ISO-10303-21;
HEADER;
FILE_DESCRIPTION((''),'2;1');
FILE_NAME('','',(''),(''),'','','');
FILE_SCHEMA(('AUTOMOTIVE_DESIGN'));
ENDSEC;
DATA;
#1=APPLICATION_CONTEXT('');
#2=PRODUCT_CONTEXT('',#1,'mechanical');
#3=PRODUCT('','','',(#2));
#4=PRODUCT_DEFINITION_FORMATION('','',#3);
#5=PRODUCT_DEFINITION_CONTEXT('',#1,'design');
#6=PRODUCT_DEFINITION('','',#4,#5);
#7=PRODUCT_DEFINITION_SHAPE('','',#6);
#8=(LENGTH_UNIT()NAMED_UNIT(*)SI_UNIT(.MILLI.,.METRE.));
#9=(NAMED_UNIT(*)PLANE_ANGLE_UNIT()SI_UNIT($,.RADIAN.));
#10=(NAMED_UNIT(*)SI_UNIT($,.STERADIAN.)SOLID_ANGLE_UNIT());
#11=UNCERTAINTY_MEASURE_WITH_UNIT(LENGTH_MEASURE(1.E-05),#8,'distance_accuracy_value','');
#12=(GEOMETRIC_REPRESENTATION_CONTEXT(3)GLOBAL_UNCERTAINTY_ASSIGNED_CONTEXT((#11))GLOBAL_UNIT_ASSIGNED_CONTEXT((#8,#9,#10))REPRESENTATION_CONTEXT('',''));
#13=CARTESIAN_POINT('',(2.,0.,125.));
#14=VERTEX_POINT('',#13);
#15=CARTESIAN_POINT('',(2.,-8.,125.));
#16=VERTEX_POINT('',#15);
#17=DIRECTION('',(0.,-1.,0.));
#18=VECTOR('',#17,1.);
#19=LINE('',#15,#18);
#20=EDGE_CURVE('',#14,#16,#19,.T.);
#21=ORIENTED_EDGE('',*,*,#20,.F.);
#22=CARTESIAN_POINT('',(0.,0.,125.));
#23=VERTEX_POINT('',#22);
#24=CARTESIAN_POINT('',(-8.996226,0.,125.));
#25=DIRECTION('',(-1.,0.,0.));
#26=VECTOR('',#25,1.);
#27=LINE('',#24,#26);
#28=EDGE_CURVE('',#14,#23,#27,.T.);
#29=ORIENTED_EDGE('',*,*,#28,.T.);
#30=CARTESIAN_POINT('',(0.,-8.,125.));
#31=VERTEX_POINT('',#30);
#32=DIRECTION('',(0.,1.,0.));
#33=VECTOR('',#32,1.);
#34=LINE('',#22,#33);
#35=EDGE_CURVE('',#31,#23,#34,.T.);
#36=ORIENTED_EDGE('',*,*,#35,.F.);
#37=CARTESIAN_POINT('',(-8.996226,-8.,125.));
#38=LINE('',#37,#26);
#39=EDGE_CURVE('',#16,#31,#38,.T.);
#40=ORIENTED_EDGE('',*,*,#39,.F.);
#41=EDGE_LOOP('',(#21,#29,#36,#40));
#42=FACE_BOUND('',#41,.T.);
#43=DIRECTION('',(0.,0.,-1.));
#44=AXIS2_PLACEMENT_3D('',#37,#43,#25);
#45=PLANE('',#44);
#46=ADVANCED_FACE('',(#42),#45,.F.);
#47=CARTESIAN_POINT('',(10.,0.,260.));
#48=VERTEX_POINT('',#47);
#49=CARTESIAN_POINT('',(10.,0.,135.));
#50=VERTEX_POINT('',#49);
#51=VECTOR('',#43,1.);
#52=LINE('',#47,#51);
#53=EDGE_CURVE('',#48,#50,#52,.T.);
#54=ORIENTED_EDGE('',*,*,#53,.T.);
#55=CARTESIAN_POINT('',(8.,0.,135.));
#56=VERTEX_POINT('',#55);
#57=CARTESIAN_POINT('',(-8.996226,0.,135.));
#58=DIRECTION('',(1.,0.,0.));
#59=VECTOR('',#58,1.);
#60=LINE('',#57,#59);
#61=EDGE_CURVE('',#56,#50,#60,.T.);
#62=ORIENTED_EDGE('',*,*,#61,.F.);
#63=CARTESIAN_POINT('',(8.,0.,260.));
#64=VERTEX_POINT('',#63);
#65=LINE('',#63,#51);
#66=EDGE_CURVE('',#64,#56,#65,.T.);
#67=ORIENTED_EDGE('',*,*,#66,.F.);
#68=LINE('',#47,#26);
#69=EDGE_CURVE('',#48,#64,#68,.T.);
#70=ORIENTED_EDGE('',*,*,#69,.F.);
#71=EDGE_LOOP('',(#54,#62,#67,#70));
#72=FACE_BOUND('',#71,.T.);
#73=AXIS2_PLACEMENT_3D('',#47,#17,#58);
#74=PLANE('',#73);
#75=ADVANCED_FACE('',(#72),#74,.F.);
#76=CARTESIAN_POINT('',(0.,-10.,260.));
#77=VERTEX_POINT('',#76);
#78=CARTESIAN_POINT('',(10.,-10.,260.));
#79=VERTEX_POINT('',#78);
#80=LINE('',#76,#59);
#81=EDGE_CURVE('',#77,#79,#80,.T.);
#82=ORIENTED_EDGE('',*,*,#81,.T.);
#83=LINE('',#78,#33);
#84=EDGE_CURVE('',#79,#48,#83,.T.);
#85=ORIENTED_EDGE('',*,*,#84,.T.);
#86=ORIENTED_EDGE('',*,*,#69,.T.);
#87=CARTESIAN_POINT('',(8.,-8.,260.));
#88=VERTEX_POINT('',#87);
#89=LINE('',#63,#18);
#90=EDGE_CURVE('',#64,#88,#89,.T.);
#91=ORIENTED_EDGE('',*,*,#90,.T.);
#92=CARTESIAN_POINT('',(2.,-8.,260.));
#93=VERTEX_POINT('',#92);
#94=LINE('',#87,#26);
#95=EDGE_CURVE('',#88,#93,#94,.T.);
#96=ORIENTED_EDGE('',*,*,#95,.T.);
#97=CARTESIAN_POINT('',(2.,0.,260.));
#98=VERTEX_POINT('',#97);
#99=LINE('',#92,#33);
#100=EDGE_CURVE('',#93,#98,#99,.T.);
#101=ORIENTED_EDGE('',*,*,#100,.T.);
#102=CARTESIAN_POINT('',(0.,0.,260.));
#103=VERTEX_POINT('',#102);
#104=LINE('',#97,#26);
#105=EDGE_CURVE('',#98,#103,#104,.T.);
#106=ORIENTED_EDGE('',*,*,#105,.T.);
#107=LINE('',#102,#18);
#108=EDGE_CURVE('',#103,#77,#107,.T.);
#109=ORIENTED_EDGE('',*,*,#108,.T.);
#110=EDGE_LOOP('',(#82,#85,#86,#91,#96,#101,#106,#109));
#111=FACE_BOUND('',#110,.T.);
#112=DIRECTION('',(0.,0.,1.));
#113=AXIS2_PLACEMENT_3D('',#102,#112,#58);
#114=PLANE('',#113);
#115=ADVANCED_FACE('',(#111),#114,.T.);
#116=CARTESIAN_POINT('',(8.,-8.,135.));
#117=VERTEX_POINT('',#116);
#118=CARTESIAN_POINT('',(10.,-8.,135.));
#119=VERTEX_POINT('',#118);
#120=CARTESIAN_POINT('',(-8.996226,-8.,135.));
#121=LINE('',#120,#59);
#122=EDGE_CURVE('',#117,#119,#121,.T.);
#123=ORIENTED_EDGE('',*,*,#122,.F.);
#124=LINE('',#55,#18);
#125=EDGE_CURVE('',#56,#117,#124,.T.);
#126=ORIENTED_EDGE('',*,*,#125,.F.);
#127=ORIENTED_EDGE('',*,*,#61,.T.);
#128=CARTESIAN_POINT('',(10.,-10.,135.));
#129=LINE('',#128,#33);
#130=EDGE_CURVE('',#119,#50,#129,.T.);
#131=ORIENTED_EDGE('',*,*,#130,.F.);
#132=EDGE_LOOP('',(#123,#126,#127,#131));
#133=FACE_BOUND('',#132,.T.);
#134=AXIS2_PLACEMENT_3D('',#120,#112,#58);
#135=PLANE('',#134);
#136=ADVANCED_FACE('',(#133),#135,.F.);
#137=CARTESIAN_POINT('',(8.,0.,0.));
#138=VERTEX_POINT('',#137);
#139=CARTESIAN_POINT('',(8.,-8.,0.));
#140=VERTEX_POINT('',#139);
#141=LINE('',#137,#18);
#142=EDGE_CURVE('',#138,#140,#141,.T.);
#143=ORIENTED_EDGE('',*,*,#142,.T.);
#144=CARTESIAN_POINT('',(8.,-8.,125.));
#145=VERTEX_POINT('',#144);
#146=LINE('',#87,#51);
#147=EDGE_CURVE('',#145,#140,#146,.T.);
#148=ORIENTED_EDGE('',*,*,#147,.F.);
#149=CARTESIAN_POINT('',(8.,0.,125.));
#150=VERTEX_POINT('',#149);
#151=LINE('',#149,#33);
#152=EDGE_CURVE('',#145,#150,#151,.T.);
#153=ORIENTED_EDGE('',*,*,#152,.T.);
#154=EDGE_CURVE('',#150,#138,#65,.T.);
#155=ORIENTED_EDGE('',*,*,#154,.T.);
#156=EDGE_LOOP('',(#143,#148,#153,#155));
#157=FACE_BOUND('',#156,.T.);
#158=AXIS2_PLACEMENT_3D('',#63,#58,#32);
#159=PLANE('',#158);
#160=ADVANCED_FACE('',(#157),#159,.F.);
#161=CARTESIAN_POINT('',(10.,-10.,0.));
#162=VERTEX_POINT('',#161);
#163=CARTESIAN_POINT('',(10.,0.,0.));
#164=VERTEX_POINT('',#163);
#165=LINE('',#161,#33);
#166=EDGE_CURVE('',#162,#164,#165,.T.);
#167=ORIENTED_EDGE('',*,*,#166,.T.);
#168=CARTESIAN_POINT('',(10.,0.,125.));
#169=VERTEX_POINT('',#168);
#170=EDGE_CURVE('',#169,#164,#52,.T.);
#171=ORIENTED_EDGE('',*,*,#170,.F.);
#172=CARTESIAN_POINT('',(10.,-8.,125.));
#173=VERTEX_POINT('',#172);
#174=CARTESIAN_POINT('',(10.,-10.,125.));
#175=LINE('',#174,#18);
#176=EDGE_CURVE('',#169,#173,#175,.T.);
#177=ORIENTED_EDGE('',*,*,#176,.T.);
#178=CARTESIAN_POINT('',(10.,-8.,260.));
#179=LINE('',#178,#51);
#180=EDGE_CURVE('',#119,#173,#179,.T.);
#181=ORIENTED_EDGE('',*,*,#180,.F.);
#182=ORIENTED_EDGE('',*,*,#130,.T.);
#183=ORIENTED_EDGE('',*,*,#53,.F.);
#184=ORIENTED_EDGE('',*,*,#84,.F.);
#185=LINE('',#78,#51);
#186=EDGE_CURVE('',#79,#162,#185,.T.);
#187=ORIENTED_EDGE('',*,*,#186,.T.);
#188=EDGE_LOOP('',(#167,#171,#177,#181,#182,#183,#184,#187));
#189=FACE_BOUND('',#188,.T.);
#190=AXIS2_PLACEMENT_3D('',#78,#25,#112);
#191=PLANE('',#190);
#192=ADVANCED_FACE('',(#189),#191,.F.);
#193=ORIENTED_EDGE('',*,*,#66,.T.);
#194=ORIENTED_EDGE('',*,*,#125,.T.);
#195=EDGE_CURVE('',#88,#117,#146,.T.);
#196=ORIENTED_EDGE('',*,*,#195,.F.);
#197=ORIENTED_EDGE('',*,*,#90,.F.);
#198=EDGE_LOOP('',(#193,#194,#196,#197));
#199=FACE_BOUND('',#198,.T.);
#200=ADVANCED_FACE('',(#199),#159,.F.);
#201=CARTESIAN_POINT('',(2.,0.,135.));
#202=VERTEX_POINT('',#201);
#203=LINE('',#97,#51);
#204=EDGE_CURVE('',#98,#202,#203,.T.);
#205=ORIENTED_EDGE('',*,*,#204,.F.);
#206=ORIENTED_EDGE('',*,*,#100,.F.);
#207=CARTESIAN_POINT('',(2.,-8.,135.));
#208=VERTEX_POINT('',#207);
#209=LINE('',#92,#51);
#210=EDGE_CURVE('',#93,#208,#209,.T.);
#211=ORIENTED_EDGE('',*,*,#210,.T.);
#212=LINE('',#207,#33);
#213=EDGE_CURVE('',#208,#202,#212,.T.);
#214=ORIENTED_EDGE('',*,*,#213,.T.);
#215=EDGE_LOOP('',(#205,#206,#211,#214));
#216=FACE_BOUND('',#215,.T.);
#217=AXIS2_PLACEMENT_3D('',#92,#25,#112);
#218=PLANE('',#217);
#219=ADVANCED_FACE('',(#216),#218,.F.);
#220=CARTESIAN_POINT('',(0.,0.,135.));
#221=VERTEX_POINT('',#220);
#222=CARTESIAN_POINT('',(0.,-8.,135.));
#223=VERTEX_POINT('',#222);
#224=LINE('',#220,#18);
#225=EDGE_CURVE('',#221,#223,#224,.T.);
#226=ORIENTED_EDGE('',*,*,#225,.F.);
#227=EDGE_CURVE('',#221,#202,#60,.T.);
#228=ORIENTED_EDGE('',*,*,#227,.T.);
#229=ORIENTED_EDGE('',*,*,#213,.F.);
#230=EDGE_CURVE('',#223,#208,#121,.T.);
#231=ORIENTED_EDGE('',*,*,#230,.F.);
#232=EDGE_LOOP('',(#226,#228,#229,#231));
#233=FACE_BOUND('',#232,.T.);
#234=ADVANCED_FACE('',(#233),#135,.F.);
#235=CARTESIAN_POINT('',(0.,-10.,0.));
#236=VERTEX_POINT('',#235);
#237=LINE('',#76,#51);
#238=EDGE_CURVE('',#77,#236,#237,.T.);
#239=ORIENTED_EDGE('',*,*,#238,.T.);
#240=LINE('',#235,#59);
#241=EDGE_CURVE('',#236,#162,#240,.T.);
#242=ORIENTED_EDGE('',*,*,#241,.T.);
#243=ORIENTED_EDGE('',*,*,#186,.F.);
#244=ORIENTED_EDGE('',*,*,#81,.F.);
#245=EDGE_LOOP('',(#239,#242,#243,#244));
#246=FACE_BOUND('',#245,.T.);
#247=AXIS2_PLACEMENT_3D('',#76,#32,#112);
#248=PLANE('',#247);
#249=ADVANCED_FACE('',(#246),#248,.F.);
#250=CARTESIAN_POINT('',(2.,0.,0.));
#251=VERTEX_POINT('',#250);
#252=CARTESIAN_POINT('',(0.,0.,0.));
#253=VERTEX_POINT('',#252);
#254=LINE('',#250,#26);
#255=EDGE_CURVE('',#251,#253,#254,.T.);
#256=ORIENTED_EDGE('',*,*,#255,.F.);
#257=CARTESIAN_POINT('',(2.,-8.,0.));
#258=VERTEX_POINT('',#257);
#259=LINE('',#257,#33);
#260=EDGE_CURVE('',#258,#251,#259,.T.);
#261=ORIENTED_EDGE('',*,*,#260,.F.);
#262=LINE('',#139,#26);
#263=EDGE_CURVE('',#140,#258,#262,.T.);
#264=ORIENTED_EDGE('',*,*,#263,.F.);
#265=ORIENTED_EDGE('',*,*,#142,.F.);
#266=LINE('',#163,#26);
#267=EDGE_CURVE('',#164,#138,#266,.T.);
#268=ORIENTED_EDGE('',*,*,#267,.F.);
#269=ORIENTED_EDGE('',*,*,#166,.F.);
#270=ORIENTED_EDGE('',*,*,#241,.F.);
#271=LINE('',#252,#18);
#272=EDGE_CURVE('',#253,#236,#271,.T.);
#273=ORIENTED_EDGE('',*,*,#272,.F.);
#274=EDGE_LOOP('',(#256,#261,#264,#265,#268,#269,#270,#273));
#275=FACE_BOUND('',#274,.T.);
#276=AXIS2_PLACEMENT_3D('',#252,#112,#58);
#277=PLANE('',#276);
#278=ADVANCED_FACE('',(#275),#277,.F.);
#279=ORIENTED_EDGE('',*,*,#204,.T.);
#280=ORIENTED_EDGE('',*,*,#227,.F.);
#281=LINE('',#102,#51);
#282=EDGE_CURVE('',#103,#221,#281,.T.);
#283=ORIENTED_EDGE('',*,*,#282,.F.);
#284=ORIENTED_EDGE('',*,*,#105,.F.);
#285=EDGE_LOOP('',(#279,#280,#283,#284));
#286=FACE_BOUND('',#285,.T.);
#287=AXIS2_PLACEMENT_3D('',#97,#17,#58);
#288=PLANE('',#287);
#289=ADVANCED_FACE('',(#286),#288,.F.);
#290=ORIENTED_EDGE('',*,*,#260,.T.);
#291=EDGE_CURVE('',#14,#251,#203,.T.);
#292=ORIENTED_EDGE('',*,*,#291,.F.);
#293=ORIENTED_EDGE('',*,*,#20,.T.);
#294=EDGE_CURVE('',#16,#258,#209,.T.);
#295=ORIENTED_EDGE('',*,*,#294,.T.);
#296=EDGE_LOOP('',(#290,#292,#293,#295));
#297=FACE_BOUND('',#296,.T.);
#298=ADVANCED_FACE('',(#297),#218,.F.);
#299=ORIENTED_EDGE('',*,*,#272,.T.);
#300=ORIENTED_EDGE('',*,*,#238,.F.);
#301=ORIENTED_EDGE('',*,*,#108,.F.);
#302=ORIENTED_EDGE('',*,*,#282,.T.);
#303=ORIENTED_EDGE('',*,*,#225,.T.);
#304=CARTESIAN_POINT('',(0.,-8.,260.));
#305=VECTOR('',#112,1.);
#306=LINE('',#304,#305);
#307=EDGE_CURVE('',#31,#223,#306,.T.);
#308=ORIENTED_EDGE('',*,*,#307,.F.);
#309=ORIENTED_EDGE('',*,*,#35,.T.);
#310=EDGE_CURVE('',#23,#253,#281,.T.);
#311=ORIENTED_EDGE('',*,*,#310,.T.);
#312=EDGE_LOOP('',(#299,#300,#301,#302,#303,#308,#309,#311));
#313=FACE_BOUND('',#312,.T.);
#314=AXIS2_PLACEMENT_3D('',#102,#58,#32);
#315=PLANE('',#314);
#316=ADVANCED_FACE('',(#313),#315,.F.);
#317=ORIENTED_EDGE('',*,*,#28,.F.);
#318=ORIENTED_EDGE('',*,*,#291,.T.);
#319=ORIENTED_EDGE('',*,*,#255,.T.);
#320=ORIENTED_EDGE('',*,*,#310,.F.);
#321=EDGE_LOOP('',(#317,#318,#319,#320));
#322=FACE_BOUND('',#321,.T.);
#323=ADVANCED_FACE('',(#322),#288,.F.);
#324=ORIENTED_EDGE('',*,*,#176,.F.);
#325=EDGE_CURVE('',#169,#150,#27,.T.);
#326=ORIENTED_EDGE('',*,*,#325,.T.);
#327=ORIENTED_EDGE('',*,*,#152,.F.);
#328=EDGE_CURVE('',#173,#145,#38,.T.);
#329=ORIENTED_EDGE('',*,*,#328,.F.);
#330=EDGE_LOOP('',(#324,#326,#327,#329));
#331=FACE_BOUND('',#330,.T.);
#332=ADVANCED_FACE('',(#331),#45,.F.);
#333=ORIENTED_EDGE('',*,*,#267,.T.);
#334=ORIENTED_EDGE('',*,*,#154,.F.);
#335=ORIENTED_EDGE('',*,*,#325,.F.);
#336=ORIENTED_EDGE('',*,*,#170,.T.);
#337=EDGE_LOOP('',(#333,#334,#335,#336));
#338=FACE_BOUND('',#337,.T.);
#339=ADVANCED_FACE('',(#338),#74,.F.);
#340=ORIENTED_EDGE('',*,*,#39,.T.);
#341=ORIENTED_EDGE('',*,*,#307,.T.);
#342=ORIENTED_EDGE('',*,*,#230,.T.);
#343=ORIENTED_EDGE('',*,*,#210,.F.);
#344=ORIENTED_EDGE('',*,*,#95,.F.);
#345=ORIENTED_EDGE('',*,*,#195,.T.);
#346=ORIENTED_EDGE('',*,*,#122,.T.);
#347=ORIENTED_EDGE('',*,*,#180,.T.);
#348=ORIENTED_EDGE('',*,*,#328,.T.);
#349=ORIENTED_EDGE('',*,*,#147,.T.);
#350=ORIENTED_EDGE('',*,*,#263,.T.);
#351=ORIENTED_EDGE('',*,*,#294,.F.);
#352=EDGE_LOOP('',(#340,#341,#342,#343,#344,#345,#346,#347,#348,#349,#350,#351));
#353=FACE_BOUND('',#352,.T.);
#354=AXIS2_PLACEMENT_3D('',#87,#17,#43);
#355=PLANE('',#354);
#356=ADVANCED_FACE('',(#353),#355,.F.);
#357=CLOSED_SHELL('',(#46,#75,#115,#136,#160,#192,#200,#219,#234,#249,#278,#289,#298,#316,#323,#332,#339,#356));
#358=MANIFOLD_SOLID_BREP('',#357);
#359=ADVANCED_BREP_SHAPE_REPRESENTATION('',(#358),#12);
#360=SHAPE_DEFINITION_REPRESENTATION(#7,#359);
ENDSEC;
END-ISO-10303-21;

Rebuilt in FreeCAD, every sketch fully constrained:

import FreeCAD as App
import Part
import Sketcher

doc = App.newDocument("Part")
body = doc.addObject("PartDesign::Body", "Body")

# Sketch on XY plane
sketch1 = body.newObject("Sketcher::SketchObject", "Sketch")
sketch1.AttachmentSupport = (doc.getObject("XY_Plane"), [""])
sketch1.MapMode = "FlatFace"
sketch1.addGeometry([
    Part.LineSegment(App.Vector(0, 0, 0), App.Vector(0, -10, 0)),  # 0
    Part.LineSegment(App.Vector(0, -10, 0), App.Vector(10, -10, 0)),  # 1
    Part.LineSegment(App.Vector(10, -10, 0), App.Vector(10, 0, 0)),  # 2
    Part.LineSegment(App.Vector(10, 0, 0), App.Vector(8, 0, 0)),  # 3
    Part.LineSegment(App.Vector(8, 0, 0), App.Vector(8, -8, 0)),  # 4
    Part.LineSegment(App.Vector(8, -8, 0), App.Vector(2, -8, 0)),  # 5
    Part.LineSegment(App.Vector(2, -8, 0), App.Vector(2, 0, 0)),  # 6
    Part.LineSegment(App.Vector(2, 0, 0), App.Vector(0, 0, 0)),  # 7
], False)
sketch1.addConstraint([
    Sketcher.Constraint("Coincident", 0, 2, 1, 1),
    Sketcher.Constraint("Coincident", 1, 2, 2, 1),
    Sketcher.Constraint("Coincident", 2, 2, 3, 1),
    Sketcher.Constraint("Coincident", 3, 2, 4, 1),
    Sketcher.Constraint("Coincident", 4, 2, 5, 1),
    Sketcher.Constraint("Coincident", 5, 2, 6, 1),
    Sketcher.Constraint("Coincident", 6, 2, 7, 1),
    Sketcher.Constraint("Coincident", 7, 2, 0, 1),
    Sketcher.Constraint("Vertical", 0),
    Sketcher.Constraint("Horizontal", 1),
    Sketcher.Constraint("Vertical", 2),
    Sketcher.Constraint("Horizontal", 3),
    Sketcher.Constraint("Vertical", 4),
    Sketcher.Constraint("Horizontal", 5),
    Sketcher.Constraint("Vertical", 6),
    Sketcher.Constraint("Horizontal", 7),
    Sketcher.Constraint("Coincident", 7, 2, -1, 1),
    Sketcher.Constraint("PointOnObject", 2, 2, -1),
    Sketcher.Constraint("Equal", 3, 7),
    Sketcher.Constraint("Equal", 1, 0),
    Sketcher.Constraint("DistanceX", 1, 1, 1, 2, 10.0),
    Sketcher.Constraint("DistanceX", 3, 2, 3, 1, 2.0),
    Sketcher.Constraint("DistanceY", 4, 2, 4, 1, 8.0),
])
pad1 = body.newObject("PartDesign::Pad", "Pad")
pad1.Profile = sketch1
pad1.Length = 260

# Sketch on XZ plane
sketch2 = body.newObject("Sketcher::SketchObject", "Sketch001")
sketch2.AttachmentSupport = (doc.getObject("XZ_Plane"), [""])
sketch2.MapMode = "FlatFace"
sketch2.addGeometry([
    Part.LineSegment(App.Vector(31, 125, 0), App.Vector(-9, 125, 0)),
    Part.LineSegment(App.Vector(-9, 125, 0), App.Vector(-9, 135, 0)),
    Part.LineSegment(App.Vector(-9, 135, 0), App.Vector(31, 135, 0)),
    Part.LineSegment(App.Vector(31, 135, 0), App.Vector(31, 125, 0)),
], False)
sketch2.addConstraint([
    Sketcher.Constraint("Coincident", 0, 2, 1, 1),
    Sketcher.Constraint("Coincident", 1, 2, 2, 1),
    Sketcher.Constraint("Coincident", 2, 2, 3, 1),
    Sketcher.Constraint("Coincident", 3, 2, 0, 1),
    Sketcher.Constraint("Horizontal", 0),
    Sketcher.Constraint("Vertical", 1),
    Sketcher.Constraint("Horizontal", 2),
    Sketcher.Constraint("Vertical", 3),
    Sketcher.Constraint("DistanceY", 1, 1, 1, 2, 10.0),
    Sketcher.Constraint("DistanceY", -1, 1, 0, 2, 125.0),
    Sketcher.Constraint("DistanceX", 0, 2, 0, 1, 40.204355),
    Sketcher.Constraint("DistanceX", -1, 1, 2, 2, 31.208129),
])
pocket1 = body.newObject("PartDesign::Pocket", "Pocket")
pocket1.Profile = sketch2
pocket1.Length = 8
pocket1.Reversed = True

doc.recompute()
